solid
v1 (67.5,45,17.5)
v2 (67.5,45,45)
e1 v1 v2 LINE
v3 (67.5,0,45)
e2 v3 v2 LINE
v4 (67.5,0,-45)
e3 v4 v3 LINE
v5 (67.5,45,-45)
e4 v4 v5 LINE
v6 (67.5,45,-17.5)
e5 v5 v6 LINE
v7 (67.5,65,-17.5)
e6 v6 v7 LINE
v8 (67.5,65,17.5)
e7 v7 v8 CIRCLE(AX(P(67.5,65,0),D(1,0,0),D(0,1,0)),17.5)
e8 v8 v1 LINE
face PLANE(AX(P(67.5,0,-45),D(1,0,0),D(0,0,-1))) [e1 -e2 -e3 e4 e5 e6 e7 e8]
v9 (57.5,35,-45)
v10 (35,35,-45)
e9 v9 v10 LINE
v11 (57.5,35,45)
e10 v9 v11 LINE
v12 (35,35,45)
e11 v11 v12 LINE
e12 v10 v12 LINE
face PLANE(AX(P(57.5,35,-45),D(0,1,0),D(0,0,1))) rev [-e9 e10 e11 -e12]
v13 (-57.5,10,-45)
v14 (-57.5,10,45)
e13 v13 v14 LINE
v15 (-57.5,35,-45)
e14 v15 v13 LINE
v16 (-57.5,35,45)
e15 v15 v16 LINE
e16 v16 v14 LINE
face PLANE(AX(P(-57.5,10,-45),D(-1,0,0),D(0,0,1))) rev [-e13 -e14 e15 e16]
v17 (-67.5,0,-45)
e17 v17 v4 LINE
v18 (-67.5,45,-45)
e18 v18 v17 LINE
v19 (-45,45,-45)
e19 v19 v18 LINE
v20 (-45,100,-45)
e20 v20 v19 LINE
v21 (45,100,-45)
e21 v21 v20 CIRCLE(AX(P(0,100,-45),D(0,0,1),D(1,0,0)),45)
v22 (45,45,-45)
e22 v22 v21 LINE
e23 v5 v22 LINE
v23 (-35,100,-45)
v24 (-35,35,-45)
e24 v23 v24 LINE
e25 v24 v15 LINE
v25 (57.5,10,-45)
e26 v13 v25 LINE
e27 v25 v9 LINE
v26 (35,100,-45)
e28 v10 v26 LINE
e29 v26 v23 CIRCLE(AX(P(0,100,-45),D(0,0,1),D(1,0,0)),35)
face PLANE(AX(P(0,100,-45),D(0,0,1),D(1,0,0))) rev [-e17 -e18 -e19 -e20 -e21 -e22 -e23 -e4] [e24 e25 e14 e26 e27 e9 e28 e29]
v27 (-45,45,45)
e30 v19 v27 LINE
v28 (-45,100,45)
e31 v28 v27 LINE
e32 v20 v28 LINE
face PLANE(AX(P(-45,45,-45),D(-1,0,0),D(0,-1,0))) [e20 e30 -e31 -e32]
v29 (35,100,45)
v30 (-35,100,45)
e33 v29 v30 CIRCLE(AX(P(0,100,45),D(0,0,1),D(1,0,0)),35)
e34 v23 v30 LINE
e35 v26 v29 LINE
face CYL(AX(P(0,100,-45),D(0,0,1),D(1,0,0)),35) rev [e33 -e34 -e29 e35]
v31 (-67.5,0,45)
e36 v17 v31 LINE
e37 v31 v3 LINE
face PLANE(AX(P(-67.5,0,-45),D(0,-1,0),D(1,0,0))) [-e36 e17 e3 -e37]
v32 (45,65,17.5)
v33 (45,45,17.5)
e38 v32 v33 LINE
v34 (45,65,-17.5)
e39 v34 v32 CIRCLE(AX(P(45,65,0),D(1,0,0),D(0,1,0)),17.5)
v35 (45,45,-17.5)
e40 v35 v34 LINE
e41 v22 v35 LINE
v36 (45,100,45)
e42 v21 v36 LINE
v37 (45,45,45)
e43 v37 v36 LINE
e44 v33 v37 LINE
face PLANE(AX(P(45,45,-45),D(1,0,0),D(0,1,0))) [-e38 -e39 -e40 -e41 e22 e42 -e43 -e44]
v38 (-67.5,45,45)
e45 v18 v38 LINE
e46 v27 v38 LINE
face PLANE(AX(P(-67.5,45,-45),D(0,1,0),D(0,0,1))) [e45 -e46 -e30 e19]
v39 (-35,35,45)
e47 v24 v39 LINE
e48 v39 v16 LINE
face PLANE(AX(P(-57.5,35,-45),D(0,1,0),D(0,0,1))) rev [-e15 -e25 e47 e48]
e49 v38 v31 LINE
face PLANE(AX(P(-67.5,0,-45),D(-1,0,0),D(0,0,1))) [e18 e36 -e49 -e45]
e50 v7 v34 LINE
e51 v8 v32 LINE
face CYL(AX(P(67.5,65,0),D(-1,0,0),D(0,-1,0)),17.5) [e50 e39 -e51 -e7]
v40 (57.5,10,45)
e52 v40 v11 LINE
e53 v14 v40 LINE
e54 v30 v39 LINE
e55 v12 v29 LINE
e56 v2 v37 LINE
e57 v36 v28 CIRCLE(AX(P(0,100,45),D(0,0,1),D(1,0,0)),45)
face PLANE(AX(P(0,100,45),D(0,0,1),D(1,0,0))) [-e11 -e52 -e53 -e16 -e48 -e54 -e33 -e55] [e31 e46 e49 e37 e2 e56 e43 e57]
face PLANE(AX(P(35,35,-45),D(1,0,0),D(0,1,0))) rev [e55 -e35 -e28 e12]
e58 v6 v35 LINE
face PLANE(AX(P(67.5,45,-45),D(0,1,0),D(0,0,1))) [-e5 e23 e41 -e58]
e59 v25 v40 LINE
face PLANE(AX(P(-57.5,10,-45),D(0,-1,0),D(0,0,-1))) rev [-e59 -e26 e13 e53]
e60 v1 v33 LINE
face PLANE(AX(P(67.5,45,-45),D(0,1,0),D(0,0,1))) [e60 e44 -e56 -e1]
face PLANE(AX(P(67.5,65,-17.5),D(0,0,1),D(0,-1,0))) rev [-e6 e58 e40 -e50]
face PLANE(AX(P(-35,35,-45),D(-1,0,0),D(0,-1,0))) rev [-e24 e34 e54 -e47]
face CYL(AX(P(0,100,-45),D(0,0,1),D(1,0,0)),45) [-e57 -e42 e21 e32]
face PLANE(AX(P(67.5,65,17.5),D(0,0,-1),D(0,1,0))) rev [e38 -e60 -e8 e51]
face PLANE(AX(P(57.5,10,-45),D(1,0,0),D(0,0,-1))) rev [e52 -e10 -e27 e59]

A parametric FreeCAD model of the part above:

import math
import FreeCAD as App
import Part
import Sketcher

V = App.Vector
Q = App.Units.Quantity

doc = App.newDocument("Part")
body = doc.addObject("PartDesign::Body", "Body")

# Sketch on XY plane
sketch1 = body.newObject("Sketcher::SketchObject", "Sketch")
sketch1.AttachmentSupport = (doc.getObject("XY_Plane"), [""])
sketch1.MapMode = "FlatFace"
sketch1.addGeometry(Part.LineSegment(V(-67.5, 0, 0), V(67.5, 0, 0)), False)
sketch1.addGeometry(Part.LineSegment(V(67.5, 0, 0), V(67.5, 45, 0)), False)
sketch1.addGeometry(Part.LineSegment(V(67.5, 45, 0), V(45, 45, 0)), False)
sketch1.addGeometry(Part.LineSegment(V(45, 45, 0), V(45, 100, 0)), False)
sketch1.addGeometry(Part.ArcOfCircle(Part.Circle(V(0, 100, 0), V(0, 0, 1), 45), math.radians(0), math.radians(180)), False)
sketch1.addGeometry(Part.LineSegment(V(-45, 100, 0), V(-45, 45, 0)), False)
sketch1.addGeometry(Part.LineSegment(V(-45, 45, 0), V(-67.5, 45, 0)), False)
sketch1.addGeometry(Part.LineSegment(V(-67.5, 45, 0), V(-67.5, 0, 0)), False)
sketch1.addGeometry(Part.LineSegment(V(-57.5, 35, 0), V(-35, 35, 0)), False)
sketch1.addGeometry(Part.LineSegment(V(-35, 35, 0), V(-35, 100, 0)), False)
sketch1.addGeometry(Part.ArcOfCircle(Part.Circle(V(0, 100, 0), V(0, 0, 1), 35), math.radians(0), math.radians(180)), False)
sketch1.addGeometry(Part.LineSegment(V(35, 100, 0), V(35, 35, 0)), False)
sketch1.addGeometry(Part.LineSegment(V(35, 35, 0), V(57.5, 35, 0)), False)
sketch1.addGeometry(Part.LineSegment(V(57.5, 35, 0), V(57.5, 10, 0)), False)
sketch1.addGeometry(Part.LineSegment(V(57.5, 10, 0), V(-57.5, 10, 0)), False)
sketch1.addGeometry(Part.LineSegment(V(-57.5, 10, 0), V(-57.5, 35, 0)), False)
sketch1.addConstraint(Sketcher.Constraint("Coincident", 0, 2, 1, 1))
sketch1.addConstraint(Sketcher.Constraint("Coincident", 1, 2, 2, 1))
sketch1.addConstraint(Sketcher.Constraint("Coincident", 2, 2, 3, 1))
sketch1.addConstraint(Sketcher.Constraint("Tangent", 3, 2, 4, 1))
sketch1.addConstraint(Sketcher.Constraint("Tangent", 4, 2, 5, 1))
sketch1.addConstraint(Sketcher.Constraint("Coincident", 5, 2, 6, 1))
sketch1.addConstraint(Sketcher.Constraint("Coincident", 6, 2, 7, 1))
sketch1.addConstraint(Sketcher.Constraint("Coincident", 7, 2, 0, 1))
sketch1.addConstraint(Sketcher.Constraint("Coincident", 8, 2, 9, 1))
sketch1.addConstraint(Sketcher.Constraint("Tangent", 9, 2, 10, 2))
sketch1.addConstraint(Sketcher.Constraint("Tangent", 10, 1, 11, 1))
sketch1.addConstraint(Sketcher.Constraint("Coincident", 11, 2, 12, 1))
sketch1.addConstraint(Sketcher.Constraint("Coincident", 12, 2, 13, 1))
sketch1.addConstraint(Sketcher.Constraint("Coincident", 13, 2, 14, 1))
sketch1.addConstraint(Sketcher.Constraint("Coincident", 14, 2, 15, 1))
sketch1.addConstraint(Sketcher.Constraint("Coincident", 15, 2, 8, 1))
sketch1.addConstraint(Sketcher.Constraint("Horizontal", 0))
sketch1.addConstraint(Sketcher.Constraint("Vertical", 1))
sketch1.addConstraint(Sketcher.Constraint("Horizontal", 2))
sketch1.addConstraint(Sketcher.Constraint("Vertical", 3))
sketch1.addConstraint(Sketcher.Constraint("Vertical", 5))
sketch1.addConstraint(Sketcher.Constraint("Horizontal", 6))
sketch1.addConstraint(Sketcher.Constraint("Vertical", 7))
sketch1.addConstraint(Sketcher.Constraint("Horizontal", 8))
sketch1.addConstraint(Sketcher.Constraint("Vertical", 9))
sketch1.addConstraint(Sketcher.Constraint("Vertical", 11))
sketch1.addConstraint(Sketcher.Constraint("Horizontal", 12))
sketch1.addConstraint(Sketcher.Constraint("Vertical", 13))
sketch1.addConstraint(Sketcher.Constraint("Horizontal", 14))
sketch1.addConstraint(Sketcher.Constraint("Vertical", 15))
sketch1.addConstraint(Sketcher.Constraint("Coincident", 10, 3, 4, 3))
sketch1.addConstraint(Sketcher.Constraint("Symmetric", 0, 2, 7, 2, -1, 1))
sketch1.addConstraint(Sketcher.Constraint("Symmetric", 2, 2, 5, 2, -2))
sketch1.addConstraint(Sketcher.Constraint("Symmetric", 12, 2, 15, 2, -2))
sketch1.addConstraint(Sketcher.Constraint("Equal", 6, 8))
sketch1.addConstraint(Sketcher.Constraint("Radius", 4, Q("45 mm")))
sketch1.addConstraint(Sketcher.Constraint("Radius", 10, Q("35 mm")))
sketch1.addConstraint(Sketcher.Constraint("DistanceX", 0, 1, 0, 2, Q("135 mm")))
sketch1.addConstraint(Sketcher.Constraint("DistanceY", 1, 1, 1, 2, Q("45 mm")))
sketch1.addConstraint(Sketcher.Constraint("DistanceY", 3, 1, 3, 2, Q("55 mm")))
sketch1.addConstraint(Sketcher.Constraint("DistanceY", 9, 1, 9, 2, Q("65 mm")))
sketch1.addConstraint(Sketcher.Constraint("DistanceY", 13, 2, 13, 1, Q("25 mm")))
pad1 = body.newObject("PartDesign::Pad", "Pad")
pad1.Profile = sketch1
pad1.Type = "TwoLengths"
pad1.Length = 45
pad1.Length2 = 45

# Sketch on YZ plane
sketch2 = body.newObject("Sketcher::SketchObject", "Sketch001")
sketch2.AttachmentSupport = (doc.getObject("YZ_Plane"), [""])
sketch2.MapMode = "FlatFace"
sketch2.AttachmentOffset = App.Placement(V(0, 0, 45), App.Rotation())
sketch2.addGeometry(Part.LineSegment(V(45, -17.5, 0), V(65, -17.5, 0)), False)
sketch2.addGeometry(Part.ArcOfCircle(Part.Circle(V(65, 0, 0), V(0, 0, 1), 17.5), math.radians(-90), math.radians(90)), False)
sketch2.addGeometry(Part.LineSegment(V(65, 17.5, 0), V(45, 17.5, 0)), False)
sketch2.addGeometry(Part.LineSegment(V(45, 17.5, 0), V(45, -17.5, 0)), False)
sketch2.addConstraint(Sketcher.Constraint("Tangent", 0, 2, 1, 1))
sketch2.addConstraint(Sketcher.Constraint("Tangent", 1, 2, 2, 1))
sketch2.addConstraint(Sketcher.Constraint("Coincident", 2, 2, 3, 1))
sketch2.addConstraint(Sketcher.Constraint("Coincident", 3, 2, 0, 1))
sketch2.addConstraint(Sketcher.Constraint("Horizontal", 0))
sketch2.addConstraint(Sketcher.Constraint("Horizontal", 2))
sketch2.addConstraint(Sketcher.Constraint("Vertical", 3))
sketch2.addConstraint(Sketcher.Constraint("PointOnObject", 1, 3, -1))
sketch2.addConstraint(Sketcher.Constraint("Radius", 1, Q("17.5 mm")))
sketch2.addConstraint(Sketcher.Constraint("DistanceX", 0, 1, 0, 2, Q("20 mm")))
sketch2.addConstraint(Sketcher.Constraint("DistanceX", -1, 1, 1, 3, Q("65 mm")))
pad2 = body.newObject("PartDesign::Pad", "Pad001")
pad2.Profile = sketch2
pad2.Length = 22.5

doc.recompute()
